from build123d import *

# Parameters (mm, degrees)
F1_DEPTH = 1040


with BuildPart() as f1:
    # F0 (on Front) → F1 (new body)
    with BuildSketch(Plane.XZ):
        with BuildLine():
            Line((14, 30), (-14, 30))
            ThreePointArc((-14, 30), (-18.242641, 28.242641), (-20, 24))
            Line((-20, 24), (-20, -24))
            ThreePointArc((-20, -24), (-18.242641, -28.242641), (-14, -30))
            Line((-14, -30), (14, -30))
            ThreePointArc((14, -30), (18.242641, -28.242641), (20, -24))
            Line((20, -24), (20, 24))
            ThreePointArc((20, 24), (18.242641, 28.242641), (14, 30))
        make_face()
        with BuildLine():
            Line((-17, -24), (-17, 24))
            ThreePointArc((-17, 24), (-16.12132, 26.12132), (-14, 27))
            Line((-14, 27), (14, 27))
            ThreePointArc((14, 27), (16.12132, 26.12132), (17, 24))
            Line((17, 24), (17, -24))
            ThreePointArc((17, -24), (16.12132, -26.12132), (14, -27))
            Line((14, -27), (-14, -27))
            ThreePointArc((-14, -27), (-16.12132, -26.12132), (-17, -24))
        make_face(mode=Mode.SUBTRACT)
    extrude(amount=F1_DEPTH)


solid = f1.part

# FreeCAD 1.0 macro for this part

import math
import FreeCAD as App
import Part
import Sketcher
Q = App.Units.Quantity

doc = App.newDocument("Part")
body = doc.addObject("PartDesign::Body", "Body")

# Sketch on XZ plane
sketch1 = body.newObject("Sketcher::SketchObject", "Sketch")
sketch1.AttachmentSupport = (doc.getObject("XZ_Plane"), [""])
sketch1.MapMode = "FlatFace"
sketch1.addGeometry(Part.LineSegment(App.Vector(14, 30, 0), App.Vector(-14, 30, 0)), False)
sketch1.addGeometry(Part.ArcOfCircle(Part.Circle(App.Vector(-14, 24, 0), App.Vector(0, 0, 1), 6), math.radians(90), math.radians(180)), False)
sketch1.addGeometry(Part.LineSegment(App.Vector(-20, 24, 0), App.Vector(-20, -24, 0)), False)
sketch1.addGeometry(Part.ArcOfCircle(Part.Circle(App.Vector(-14, -24, 0), App.Vector(0, 0, 1), 6), math.radians(180), math.radians(270)), False)
sketch1.addGeometry(Part.LineSegment(App.Vector(-14, -30, 0), App.Vector(14, -30, 0)), False)
sketch1.addGeometry(Part.ArcOfCircle(Part.Circle(App.Vector(14, -24, 0), App.Vector(0, 0, 1), 6), math.radians(-90), math.radians(0)), False)
sketch1.addGeometry(Part.LineSegment(App.Vector(20, -24, 0), App.Vector(20, 24, 0)), False)
sketch1.addGeometry(Part.ArcOfCircle(Part.Circle(App.Vector(14, 24, 0), App.Vector(0, 0, 1), 6), math.radians(0), math.radians(90)), False)
sketch1.addGeometry(Part.ArcOfCircle(Part.Circle(App.Vector(-14, -24, 0), App.Vector(0, 0, 1), 3), math.radians(-180), math.radians(-90)), False)
sketch1.addGeometry(Part.LineSegment(App.Vector(-17, -24, 0), App.Vector(-17, 24, 0)), False)
sketch1.addGeometry(Part.ArcOfCircle(Part.Circle(App.Vector(-14, 24, 0), App.Vector(0, 0, 1), 3), math.radians(90), math.radians(180)), False)
sketch1.addGeometry(Part.LineSegment(App.Vector(-14, 27, 0), App.Vector(14, 27, 0)), False)
sketch1.addGeometry(Part.ArcOfCircle(Part.Circle(App.Vector(14, 24, 0), App.Vector(0, 0, 1), 3), math.radians(0), math.radians(90)), False)
sketch1.addGeometry(Part.LineSegment(App.Vector(17, 24, 0), App.Vector(17, -24, 0)), False)
sketch1.addGeometry(Part.ArcOfCircle(Part.Circle(App.Vector(14, -24, 0), App.Vector(0, 0, 1), 3), math.radians(-90), math.radians(0)), False)
sketch1.addGeometry(Part.LineSegment(App.Vector(14, -27, 0), App.Vector(-14, -27, 0)), False)
sketch1.addConstraint(Sketcher.Constraint("Tangent", 0, 2, 1, 1))
sketch1.addConstraint(Sketcher.Constraint("Tangent", 1, 2, 2, 1))
sketch1.addConstraint(Sketcher.Constraint("Tangent", 2, 2, 3, 1))
sketch1.addConstraint(Sketcher.Constraint("Tangent", 3, 2, 4, 1))
sketch1.addConstraint(Sketcher.Constraint("Tangent", 4, 2, 5, 1))
sketch1.addConstraint(Sketcher.Constraint("Tangent", 5, 2, 6, 1))
sketch1.addConstraint(Sketcher.Constraint("Tangent", 6, 2, 7, 1))
sketch1.addConstraint(Sketcher.Constraint("Tangent", 7, 2, 0, 1))
sketch1.addConstraint(Sketcher.Constraint("Tangent", 8, 1, 9, 1))
sketch1.addConstraint(Sketcher.Constraint("Tangent", 9, 2, 10, 2))
sketch1.addConstraint(Sketcher.Constraint("Tangent", 10, 1, 11, 1))
sketch1.addConstraint(Sketcher.Constraint("Tangent", 11, 2, 12, 2))
sketch1.addConstraint(Sketcher.Constraint("Tangent", 12, 1, 13, 1))
sketch1.addConstraint(Sketcher.Constraint("Tangent", 13, 2, 14, 2))
sketch1.addConstraint(Sketcher.Constraint("Tangent", 14, 1, 15, 1))
sketch1.addConstraint(Sketcher.Constraint("Tangent", 15, 2, 8, 2))
sketch1.addConstraint(Sketcher.Constraint("Horizontal", 0))
sketch1.addConstraint(Sketcher.Constraint("Vertical", 2))
sketch1.addConstraint(Sketcher.Constraint("Horizontal", 4))
sketch1.addConstraint(Sketcher.Constraint("Vertical", 6))
sketch1.addConstraint(Sketcher.Constraint("Vertical", 9))
sketch1.addConstraint(Sketcher.Constraint("Horizontal", 11))
sketch1.addConstraint(Sketcher.Constraint("Vertical", 13))
sketch1.addConstraint(Sketcher.Constraint("Horizontal", 15))
sketch1.addConstraint(Sketcher.Constraint("Coincident", 8, 3, 3, 3))
sketch1.addConstraint(Sketcher.Constraint("Coincident", 10, 3, 1, 3))
sketch1.addConstraint(Sketcher.Constraint("Coincident", 12, 3, 7, 3))
sketch1.addConstraint(Sketcher.Constraint("Equal", 1, 3))
sketch1.addConstraint(Sketcher.Constraint("Equal", 3, 5))
sketch1.addConstraint(Sketcher.Constraint("Equal", 5, 7))
sketch1.addConstraint(Sketcher.Constraint("Equal", 12, 14))
sketch1.addConstraint(Sketcher.Constraint("Symmetric", 1, 3, 5, 3, -1, 1))
sketch1.addConstraint(Sketcher.Constraint("Radius", 1, Q("5.999999 mm")))
sketch1.addConstraint(Sketcher.Constraint("Radius", 8, Q("3.000001 mm")))
sketch1.addConstraint(Sketcher.Constraint("DistanceX", 0, 2, 0, 1, Q("28 mm")))
sketch1.addConstraint(Sketcher.Constraint("DistanceY", 2, 2, 2, 1, Q("48 mm")))
pad1 = body.newObject("PartDesign::Pad", "Pad")
pad1.Profile = sketch1
pad1.Length = 1040

doc.recompute()
